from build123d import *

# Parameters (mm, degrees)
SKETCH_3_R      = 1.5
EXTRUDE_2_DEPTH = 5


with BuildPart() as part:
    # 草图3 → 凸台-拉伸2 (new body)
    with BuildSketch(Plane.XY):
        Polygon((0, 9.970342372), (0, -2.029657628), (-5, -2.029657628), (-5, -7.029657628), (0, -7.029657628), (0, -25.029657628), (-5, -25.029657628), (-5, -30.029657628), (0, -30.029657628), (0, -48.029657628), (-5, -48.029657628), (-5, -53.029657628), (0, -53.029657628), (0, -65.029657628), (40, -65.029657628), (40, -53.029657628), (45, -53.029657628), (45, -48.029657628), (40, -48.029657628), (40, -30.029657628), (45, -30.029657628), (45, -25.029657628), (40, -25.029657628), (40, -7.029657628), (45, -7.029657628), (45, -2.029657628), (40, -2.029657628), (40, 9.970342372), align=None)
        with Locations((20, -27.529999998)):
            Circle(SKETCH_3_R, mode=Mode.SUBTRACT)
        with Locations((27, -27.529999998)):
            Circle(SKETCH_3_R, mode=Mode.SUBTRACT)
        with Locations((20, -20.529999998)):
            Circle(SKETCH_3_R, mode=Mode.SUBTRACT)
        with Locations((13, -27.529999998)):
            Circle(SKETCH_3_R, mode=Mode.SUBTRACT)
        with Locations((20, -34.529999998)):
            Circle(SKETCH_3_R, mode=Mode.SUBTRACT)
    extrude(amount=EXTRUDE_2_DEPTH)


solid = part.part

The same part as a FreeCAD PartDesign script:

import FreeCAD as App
import Part
import Sketcher
from FreeCAD import Vector
Q = App.Units.Quantity


def add_polygon(sketch, points):
    """Adds a closed chain of lines whose ends are joined by coincident constraints."""
    first, n = sketch.GeometryCount, len(points)
    for a, b in zip(points, points[1:] + points[:1]):
        sketch.addGeometry(Part.LineSegment(App.Vector(*a, 0), App.Vector(*b, 0)), False)
    for i in range(n):
        sketch.addConstraint(Sketcher.Constraint("Coincident", first + i, 2, first + (i + 1) % n, 1))

doc = App.newDocument("Part")
params = doc.addObject("Spreadsheet::Sheet", "Params")
for row, (alias, value) in enumerate([
    ("sketch1_diameter", "3 mm"),
    ("sketch1_width", "5 mm"),
    ("sketch1_width2", "40 mm"),
    ("sketch1_height", "12 mm"),
    ("sketch1_height2", "18 mm"),
    ("pad1_length", "5 mm"),
], start=1):
    params.set(f"A{row}", alias)
    params.set(f"B{row}", "=" + value)
    params.setAlias(f"B{row}", alias)

body = doc.addObject("PartDesign::Body", "Body")

sketch1 = body.newObject("Sketcher::SketchObject", "Sketch")
sketch1.AttachmentSupport = (doc.getObject("XY_Plane"), [""])
sketch1.MapMode = "FlatFace"
add_polygon(sketch1, [(0, 9.970342), (0, -2.029658), (-5, -2.029658), (-5, -7.029658), (0, -7.029658), (0, -25.029658), (-5, -25.029658), (-5, -30.029658), (0, -30.029658), (0, -48.029658), (-5, -48.029658), (-5, -53.029658), (0, -53.029658), (0, -65.029658), (40, -65.029658), (40, -53.029658), (45, -53.029658), (45, -48.029658), (40, -48.029658), (40, -30.029658), (45, -30.029658), (45, -25.029658), (40, -25.029658), (40, -7.029658), (45, -7.029658), (45, -2.029658), (40, -2.029658), (40, 9.970342)])
sketch1.addGeometry(Part.Circle(Vector(20, -34.53, 0), Vector(0, 0, 1), 1.5), False)
sketch1.addGeometry(Part.Circle(Vector(13, -27.53, 0), Vector(0, 0, 1), 1.5), False)
sketch1.addGeometry(Part.Circle(Vector(20, -27.53, 0), Vector(0, 0, 1), 1.5), False)
sketch1.addGeometry(Part.Circle(Vector(27, -27.53, 0), Vector(0, 0, 1), 1.5), False)
sketch1.addGeometry(Part.Circle(Vector(20, -20.53, 0), Vector(0, 0, 1), 1.5), False)
sketch1.addConstraint([
    Sketcher.Constraint("Vertical", 0),
    Sketcher.Constraint("Horizontal", 1),
    Sketcher.Constraint("Vertical", 2),
    Sketcher.Constraint("Horizontal", 3),
    Sketcher.Constraint("Vertical", 4),
    Sketcher.Constraint("Horizontal", 5),
    Sketcher.Constraint("Vertical", 6),
    Sketcher.Constraint("Horizontal", 7),
    Sketcher.Constraint("Vertical", 8),
    Sketcher.Constraint("Horizontal", 9),
    Sketcher.Constraint("Vertical", 10),
    Sketcher.Constraint("Horizontal", 11),
    Sketcher.Constraint("Vertical", 12),
    Sketcher.Constraint("Horizontal", 13),
    Sketcher.Constraint("Vertical", 14),
    Sketcher.Constraint("Horizontal", 15),
    Sketcher.Constraint("Vertical", 16),
    Sketcher.Constraint("Horizontal", 17),
    Sketcher.Constraint("Vertical", 18),
    Sketcher.Constraint("Horizontal", 19),
    Sketcher.Constraint("Vertical", 20),
    Sketcher.Constraint("Horizontal", 21),
    Sketcher.Constraint("Vertical", 22),
    Sketcher.Constraint("Horizontal", 23),
    Sketcher.Constraint("Vertical", 24),
    Sketcher.Constraint("Horizontal", 25),
    Sketcher.Constraint("Vertical", 26),
    Sketcher.Constraint("Horizontal", 27),
    Sketcher.Constraint("Equal", 28, 29),
    Sketcher.Constraint("Equal", 29, 30),
    Sketcher.Constraint("Equal", 30, 31),
    Sketcher.Constraint("Equal", 31, 32),
    Sketcher.Constraint("PointOnObject", 0, 2, -2),
    Sketcher.Constraint("PointOnObject", 3, 2, -2),
    Sketcher.Constraint("PointOnObject", 7, 2, -2),
    Sketcher.Constraint("PointOnObject", 11, 2, -2),
    Sketcher.Constraint("Horizontal", 29, 3, 30, 3),
    Sketcher.Constraint("Horizontal", 30, 3, 31, 3),
    Sketcher.Constraint("Horizontal", 11, 2, 14, 2),
    Sketcher.Constraint("Horizontal", 9, 2, 16, 2),
    Sketcher.Constraint("Horizontal", 7, 2, 18, 2),
    Sketcher.Constraint("Horizontal", 5, 2, 20, 2),
    Sketcher.Constraint("Horizontal", 3, 2, 22, 2),
    Sketcher.Constraint("Horizontal", 1, 2, 24, 2),
    Sketcher.Constraint("Vertical", 28, 3, 30, 3),
    Sketcher.Constraint("Vertical", 30, 3, 32, 3),
    Sketcher.Constraint("Vertical", 2, 2, 5, 2),
    Sketcher.Constraint("Vertical", 6, 2, 9, 2),
    Sketcher.Constraint("Vertical", 14, 2, 17, 2),
    Sketcher.Constraint("Vertical", 16, 2, 19, 2),
    Sketcher.Constraint("Vertical", 18, 2, 21, 2),
    Sketcher.Constraint("Vertical", 20, 2, 23, 2),
    Sketcher.Constraint("Vertical", 22, 2, 25, 2),
    Sketcher.Constraint("Equal", 11, 15),
    Sketcher.Constraint("Equal", 25, 2),
    Sketcher.Constraint("Equal", 2, 6),
    Sketcher.Constraint("Equal", 4, 8),
    Sketcher.Constraint("Equal", 6, 10),
    Sketcher.Constraint("Equal", 0, 12),
    Sketcher.Constraint("Diameter", 28, Q("3 mm")),
    Sketcher.Constraint("DistanceX", 1, 2, 1, 1, Q("5 mm")),
    Sketcher.Constraint("DistanceX", 13, 1, 13, 2, Q("40 mm")),
    Sketcher.Constraint("DistanceY", 0, 2, 0, 1, Q("12 mm")),
    Sketcher.Constraint("DistanceY", 4, 2, 4, 1, Q("18 mm")),
    Sketcher.Constraint("DistanceX", -1, 1, 28, 3, Q("20 mm")),
    Sketcher.Constraint("DistanceX", -1, 1, 29, 3, Q("13 mm")),
    Sketcher.Constraint("DistanceX", -1, 1, 31, 3, Q("27 mm")),
    Sketcher.Constraint("DistanceY", 28, 3, 29, 3, Q("7 mm")),
    Sketcher.Constraint("DistanceY", 30, 3, 32, 3, Q("7 mm")),
    Sketcher.Constraint("DistanceY", 28, 3, -1, 1, Q("34.53 mm")),
    Sketcher.Constraint("DistanceY", 0, 2, -1, 1, Q("2.029658 mm")),
])
sketch1.setExpression("Constraints[87]", "Params.sketch1_diameter")
sketch1.setExpression("Constraints[88]", "Params.sketch1_width")
sketch1.setExpression("Constraints[89]", "Params.sketch1_width2")
sketch1.setExpression("Constraints[90]", "Params.sketch1_height")
sketch1.setExpression("Constraints[91]", "Params.sketch1_height2")
pad1 = body.newObject("PartDesign::Pad", "Pad")
pad1.Profile = sketch1
pad1.setExpression("Length", "Params.pad1_length")

doc.recompute()
